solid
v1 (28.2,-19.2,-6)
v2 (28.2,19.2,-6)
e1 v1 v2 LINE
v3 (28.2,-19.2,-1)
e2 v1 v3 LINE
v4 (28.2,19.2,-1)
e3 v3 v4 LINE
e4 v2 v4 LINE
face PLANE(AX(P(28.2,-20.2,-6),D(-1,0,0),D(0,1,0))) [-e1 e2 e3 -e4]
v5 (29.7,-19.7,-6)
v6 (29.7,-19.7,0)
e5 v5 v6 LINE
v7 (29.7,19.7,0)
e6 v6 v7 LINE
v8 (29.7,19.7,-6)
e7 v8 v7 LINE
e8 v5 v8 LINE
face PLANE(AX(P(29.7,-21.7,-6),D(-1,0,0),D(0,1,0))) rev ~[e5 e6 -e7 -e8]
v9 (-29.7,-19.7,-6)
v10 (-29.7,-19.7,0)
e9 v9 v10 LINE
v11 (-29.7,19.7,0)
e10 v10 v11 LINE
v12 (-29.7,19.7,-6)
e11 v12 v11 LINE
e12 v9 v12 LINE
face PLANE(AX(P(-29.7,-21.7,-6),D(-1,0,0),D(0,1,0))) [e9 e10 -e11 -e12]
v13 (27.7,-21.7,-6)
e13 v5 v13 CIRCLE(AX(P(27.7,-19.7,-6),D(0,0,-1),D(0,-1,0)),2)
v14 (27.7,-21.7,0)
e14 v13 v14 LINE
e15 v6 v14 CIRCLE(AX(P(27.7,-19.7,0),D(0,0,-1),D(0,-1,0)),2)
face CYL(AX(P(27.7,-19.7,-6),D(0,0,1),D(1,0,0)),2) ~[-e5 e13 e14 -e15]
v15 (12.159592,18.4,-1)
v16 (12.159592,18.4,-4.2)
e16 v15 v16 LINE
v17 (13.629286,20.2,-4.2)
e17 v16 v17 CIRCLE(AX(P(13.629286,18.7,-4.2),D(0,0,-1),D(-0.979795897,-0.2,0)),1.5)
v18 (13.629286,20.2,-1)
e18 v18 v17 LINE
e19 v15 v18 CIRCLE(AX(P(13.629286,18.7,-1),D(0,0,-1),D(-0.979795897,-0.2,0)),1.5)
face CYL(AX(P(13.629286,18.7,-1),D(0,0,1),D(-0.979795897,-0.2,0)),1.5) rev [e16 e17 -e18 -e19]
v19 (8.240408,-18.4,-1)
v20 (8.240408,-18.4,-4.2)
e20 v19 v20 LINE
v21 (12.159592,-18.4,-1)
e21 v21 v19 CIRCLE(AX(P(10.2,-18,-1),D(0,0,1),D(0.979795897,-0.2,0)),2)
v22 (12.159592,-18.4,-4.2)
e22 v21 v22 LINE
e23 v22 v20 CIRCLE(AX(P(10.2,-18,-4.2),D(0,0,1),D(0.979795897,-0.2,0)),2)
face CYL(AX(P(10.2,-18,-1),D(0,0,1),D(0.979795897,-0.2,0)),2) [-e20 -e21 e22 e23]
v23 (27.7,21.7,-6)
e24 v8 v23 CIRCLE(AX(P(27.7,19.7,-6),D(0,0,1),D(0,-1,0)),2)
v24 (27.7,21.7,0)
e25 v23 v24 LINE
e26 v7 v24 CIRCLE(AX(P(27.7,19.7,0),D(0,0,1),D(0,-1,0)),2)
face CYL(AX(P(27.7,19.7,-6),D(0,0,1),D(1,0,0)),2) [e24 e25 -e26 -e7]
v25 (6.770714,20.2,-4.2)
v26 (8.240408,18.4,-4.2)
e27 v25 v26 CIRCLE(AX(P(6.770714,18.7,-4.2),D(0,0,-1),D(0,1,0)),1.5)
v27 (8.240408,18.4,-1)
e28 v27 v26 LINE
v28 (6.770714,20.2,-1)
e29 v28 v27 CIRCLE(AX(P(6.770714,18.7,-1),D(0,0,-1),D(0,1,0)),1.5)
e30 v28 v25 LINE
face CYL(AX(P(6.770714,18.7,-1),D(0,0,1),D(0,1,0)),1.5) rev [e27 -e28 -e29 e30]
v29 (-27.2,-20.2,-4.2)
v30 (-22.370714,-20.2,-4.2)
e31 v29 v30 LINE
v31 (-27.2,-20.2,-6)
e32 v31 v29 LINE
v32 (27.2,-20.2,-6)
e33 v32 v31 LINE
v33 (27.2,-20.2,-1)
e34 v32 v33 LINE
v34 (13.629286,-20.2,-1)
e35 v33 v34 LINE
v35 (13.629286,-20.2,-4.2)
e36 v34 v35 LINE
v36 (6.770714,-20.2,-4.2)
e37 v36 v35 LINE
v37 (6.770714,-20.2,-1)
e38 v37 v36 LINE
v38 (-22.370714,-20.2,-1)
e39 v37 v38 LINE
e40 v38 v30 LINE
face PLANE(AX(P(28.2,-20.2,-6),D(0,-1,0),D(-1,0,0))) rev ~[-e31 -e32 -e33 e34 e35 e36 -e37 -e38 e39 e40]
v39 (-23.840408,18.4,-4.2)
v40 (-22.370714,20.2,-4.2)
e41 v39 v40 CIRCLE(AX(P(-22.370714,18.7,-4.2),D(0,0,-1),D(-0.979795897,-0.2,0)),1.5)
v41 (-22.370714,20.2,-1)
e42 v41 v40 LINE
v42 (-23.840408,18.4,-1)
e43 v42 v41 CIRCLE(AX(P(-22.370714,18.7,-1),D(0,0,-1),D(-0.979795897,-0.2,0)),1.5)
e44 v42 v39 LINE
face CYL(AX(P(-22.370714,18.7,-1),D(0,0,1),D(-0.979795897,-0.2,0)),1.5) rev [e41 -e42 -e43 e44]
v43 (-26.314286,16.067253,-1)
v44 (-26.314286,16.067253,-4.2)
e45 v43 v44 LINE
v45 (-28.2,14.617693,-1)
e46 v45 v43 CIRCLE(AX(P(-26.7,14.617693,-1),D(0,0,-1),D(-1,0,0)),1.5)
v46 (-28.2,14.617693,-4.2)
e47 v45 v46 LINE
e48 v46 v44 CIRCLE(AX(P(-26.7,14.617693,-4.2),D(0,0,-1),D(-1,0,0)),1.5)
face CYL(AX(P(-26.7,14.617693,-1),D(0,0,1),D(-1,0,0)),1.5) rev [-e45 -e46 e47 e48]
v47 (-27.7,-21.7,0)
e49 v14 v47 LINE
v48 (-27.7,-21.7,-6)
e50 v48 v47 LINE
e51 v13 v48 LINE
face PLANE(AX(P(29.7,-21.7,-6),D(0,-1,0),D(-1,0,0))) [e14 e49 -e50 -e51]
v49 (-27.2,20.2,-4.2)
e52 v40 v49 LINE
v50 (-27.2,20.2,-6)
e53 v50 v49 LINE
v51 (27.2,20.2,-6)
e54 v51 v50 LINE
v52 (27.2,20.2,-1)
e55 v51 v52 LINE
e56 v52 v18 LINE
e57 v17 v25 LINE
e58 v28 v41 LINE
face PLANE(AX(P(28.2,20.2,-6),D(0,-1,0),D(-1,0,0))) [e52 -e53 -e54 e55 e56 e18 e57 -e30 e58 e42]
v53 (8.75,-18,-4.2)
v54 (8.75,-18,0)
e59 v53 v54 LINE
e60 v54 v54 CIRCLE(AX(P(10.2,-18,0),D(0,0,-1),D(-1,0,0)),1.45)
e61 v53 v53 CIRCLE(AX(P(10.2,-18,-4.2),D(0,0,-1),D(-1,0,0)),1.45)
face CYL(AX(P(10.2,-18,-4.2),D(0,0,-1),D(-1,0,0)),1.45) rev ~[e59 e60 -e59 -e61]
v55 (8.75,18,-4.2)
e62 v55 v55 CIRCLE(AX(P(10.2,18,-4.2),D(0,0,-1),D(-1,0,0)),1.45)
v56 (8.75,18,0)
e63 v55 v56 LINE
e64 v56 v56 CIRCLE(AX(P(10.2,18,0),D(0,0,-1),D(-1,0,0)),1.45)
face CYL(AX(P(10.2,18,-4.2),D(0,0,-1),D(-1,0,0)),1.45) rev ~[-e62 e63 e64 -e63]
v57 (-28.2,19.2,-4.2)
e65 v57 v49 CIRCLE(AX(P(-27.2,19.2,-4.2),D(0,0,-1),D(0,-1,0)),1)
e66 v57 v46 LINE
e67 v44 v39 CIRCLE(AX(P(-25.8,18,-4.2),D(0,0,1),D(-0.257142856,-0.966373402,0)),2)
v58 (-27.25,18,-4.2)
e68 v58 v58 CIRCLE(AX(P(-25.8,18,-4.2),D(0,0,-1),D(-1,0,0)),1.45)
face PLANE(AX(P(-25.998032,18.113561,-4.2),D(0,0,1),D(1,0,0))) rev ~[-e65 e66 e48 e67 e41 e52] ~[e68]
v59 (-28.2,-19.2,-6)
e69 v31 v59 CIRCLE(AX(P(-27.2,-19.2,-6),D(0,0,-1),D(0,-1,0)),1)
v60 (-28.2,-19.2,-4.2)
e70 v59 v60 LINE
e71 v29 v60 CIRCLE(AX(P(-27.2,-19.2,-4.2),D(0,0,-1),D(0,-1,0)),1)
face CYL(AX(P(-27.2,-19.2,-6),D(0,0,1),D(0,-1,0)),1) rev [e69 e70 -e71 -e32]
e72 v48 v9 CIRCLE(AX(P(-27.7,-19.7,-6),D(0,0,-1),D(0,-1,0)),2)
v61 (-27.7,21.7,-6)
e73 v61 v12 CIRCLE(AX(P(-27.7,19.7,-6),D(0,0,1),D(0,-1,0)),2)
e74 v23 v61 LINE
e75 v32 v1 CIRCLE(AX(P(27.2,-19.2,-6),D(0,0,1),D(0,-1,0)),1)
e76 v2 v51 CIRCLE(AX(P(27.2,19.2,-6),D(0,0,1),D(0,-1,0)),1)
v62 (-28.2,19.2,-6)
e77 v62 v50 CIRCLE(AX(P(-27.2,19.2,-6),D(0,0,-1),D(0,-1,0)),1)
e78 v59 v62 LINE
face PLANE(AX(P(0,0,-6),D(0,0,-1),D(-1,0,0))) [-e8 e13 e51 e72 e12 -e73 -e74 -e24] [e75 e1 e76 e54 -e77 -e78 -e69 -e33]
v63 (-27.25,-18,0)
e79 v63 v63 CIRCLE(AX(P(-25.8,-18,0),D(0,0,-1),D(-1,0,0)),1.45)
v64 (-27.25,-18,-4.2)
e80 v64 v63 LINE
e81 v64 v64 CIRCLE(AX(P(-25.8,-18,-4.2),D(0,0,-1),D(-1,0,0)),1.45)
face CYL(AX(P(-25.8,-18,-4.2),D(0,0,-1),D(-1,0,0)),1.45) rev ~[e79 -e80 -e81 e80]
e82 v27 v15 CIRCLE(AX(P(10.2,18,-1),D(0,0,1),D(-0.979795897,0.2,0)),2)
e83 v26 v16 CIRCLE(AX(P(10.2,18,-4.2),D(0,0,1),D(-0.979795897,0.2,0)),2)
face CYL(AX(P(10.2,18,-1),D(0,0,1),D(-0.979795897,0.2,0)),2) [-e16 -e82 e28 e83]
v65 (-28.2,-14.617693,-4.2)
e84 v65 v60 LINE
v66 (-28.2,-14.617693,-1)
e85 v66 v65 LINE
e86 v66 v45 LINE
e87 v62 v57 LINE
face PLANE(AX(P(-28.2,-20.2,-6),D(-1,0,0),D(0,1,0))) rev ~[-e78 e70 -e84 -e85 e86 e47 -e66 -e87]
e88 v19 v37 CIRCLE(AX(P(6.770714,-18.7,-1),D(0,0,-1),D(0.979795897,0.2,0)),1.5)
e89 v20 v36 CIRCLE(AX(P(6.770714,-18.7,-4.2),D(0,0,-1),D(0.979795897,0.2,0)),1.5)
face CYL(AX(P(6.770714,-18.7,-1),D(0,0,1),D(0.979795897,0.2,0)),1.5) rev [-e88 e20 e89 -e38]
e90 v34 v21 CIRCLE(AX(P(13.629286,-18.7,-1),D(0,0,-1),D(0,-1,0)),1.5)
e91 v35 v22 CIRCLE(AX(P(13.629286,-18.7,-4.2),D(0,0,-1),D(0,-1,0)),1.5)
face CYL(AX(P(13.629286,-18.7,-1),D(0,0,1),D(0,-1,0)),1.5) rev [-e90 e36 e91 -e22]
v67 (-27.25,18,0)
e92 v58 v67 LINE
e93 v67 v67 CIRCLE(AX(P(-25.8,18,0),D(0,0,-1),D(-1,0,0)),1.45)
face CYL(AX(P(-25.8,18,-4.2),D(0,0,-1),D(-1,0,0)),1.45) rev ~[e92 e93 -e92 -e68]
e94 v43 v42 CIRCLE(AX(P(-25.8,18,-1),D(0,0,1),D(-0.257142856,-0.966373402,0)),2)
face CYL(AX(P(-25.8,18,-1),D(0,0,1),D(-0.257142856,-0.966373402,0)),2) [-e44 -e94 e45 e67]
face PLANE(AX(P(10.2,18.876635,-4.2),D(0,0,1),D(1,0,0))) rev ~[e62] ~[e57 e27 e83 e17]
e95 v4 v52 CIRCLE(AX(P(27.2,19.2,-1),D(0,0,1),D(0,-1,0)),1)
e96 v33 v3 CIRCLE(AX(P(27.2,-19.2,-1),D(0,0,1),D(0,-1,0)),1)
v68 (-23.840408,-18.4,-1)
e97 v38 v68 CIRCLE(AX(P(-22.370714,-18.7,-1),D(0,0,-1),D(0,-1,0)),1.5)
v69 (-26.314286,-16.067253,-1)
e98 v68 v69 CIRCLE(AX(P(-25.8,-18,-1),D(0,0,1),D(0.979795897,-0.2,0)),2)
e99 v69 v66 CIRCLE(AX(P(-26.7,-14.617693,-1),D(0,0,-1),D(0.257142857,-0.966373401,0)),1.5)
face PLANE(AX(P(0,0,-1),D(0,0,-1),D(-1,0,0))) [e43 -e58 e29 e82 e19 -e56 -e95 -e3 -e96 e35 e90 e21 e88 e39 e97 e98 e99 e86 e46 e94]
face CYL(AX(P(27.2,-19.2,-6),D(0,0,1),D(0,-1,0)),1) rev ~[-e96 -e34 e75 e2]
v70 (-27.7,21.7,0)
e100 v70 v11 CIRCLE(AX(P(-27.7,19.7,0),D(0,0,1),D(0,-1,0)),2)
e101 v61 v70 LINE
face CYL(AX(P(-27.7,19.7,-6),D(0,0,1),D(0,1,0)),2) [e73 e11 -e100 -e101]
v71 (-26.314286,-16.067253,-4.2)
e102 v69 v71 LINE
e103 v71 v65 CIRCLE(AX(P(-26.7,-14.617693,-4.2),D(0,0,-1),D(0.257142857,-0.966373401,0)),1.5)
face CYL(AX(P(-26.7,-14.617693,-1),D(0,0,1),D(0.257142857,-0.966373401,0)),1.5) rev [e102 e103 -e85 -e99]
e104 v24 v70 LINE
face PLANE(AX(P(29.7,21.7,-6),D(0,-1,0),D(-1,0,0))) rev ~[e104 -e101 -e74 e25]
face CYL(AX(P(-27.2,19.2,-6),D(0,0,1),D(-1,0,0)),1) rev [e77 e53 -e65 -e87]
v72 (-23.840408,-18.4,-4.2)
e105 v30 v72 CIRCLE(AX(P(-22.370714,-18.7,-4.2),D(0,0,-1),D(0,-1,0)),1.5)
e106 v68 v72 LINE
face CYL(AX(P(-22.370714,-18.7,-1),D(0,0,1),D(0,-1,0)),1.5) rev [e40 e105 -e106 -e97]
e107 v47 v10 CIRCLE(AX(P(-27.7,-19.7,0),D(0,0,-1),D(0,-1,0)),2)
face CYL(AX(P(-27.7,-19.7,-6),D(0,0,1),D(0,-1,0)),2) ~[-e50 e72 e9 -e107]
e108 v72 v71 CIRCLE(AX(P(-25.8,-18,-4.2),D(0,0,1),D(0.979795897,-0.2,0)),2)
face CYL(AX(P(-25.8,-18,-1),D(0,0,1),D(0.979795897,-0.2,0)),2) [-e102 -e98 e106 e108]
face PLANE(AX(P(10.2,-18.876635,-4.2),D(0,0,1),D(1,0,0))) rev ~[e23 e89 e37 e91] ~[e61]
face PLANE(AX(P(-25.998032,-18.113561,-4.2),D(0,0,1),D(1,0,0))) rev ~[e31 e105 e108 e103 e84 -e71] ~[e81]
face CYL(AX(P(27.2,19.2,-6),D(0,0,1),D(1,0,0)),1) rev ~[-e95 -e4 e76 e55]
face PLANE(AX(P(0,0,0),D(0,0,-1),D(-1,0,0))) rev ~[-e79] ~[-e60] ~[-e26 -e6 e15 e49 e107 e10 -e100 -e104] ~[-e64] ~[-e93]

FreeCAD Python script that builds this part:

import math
import FreeCAD as App
import Part
import Sketcher
from FreeCAD import Vector
Q = App.Units.Quantity


def edges_at(feature, points):
    """Names of the edges that pass closest to the given points."""
    edges = feature.Shape.Edges
    near = lambda p: min(range(len(edges)), key=lambda i: edges[i].distToShape(Part.Vertex(*p))[0])
    return sorted({f"Edge{near(p) + 1}" for p in points})

doc = App.newDocument("Part")
body = doc.addObject("PartDesign::Body", "Body")

# Sketch on XY plane
sketch1 = doc.addObject("Sketcher::SketchObject", "Sketch")
body.addObject(sketch1)
sketch1.AttachmentSupport = (doc.XY_Plane, [""])
sketch1.MapMode = "FlatFace"
sketch1.AttachmentOffset = App.Placement(Vector(0, 0, -6), App.Rotation())
sketch1.addGeometry([
    Part.LineSegment(Vector(30, 22, 0), Vector(30, -22, 0)),
    Part.LineSegment(Vector(30, -22, 0), Vector(-30, -22, 0)),
    Part.LineSegment(Vector(-30, -22, 0), Vector(-30, 22, 0)),
    Part.LineSegment(Vector(-30, 22, 0), Vector(30, 22, 0)),
], False)
sketch1.addConstraint([
    Sketcher.Constraint("Coincident", 0, 2, 1, 1),
    Sketcher.Constraint("Coincident", 1, 2, 2, 1),
    Sketcher.Constraint("Coincident", 2, 2, 3, 1),
    Sketcher.Constraint("Coincident", 3, 2, 0, 1),
    Sketcher.Constraint("Vertical", 0),
    Sketcher.Constraint("Horizontal", 1),
    Sketcher.Constraint("Vertical", 2),
    Sketcher.Constraint("Horizontal", 3),
    Sketcher.Constraint("Symmetric", 0, 2, 2, 2, -1, 1),
    Sketcher.Constraint("DistanceX", 1, 2, 1, 1, Q("59.4 mm")),
    Sketcher.Constraint("DistanceY", 0, 2, 0, 1, Q("43.4 mm")),
])
pad1 = doc.addObject("PartDesign::Pad", "Pad")
body.addObject(pad1)
pad1.Profile = sketch1
pad1.Length = 6

# Sketch on XY plane
sketch2 = doc.addObject("Sketcher::SketchObject", "Sketch001")
body.addObject(sketch2)
sketch2.AttachmentSupport = (doc.XY_Plane, [""])
sketch2.MapMode = "FlatFace"
sketch2.AttachmentOffset = App.Placement(Vector(0, 0, -6), App.Rotation())
sketch2.addGeometry([
    Part.LineSegment(Vector(28, 20, 0), Vector(28, -20, 0)),
    Part.LineSegment(Vector(28, -20, 0), Vector(-28, -20, 0)),
    Part.LineSegment(Vector(-28, -20, 0), Vector(-28, 20, 0)),
    Part.LineSegment(Vector(-28, 20, 0), Vector(28, 20, 0)),
], False)
sketch2.addConstraint([
    Sketcher.Constraint("Coincident", 0, 2, 1, 1),
    Sketcher.Constraint("Coincident", 1, 2, 2, 1),
    Sketcher.Constraint("Coincident", 2, 2, 3, 1),
    Sketcher.Constraint("Coincident", 3, 2, 0, 1),
    Sketcher.Constraint("Vertical", 0),
    Sketcher.Constraint("Horizontal", 1),
    Sketcher.Constraint("Vertical", 2),
    Sketcher.Constraint("Horizontal", 3),
    Sketcher.Constraint("Symmetric", 0, 2, 2, 2, -1, 1),
    Sketcher.Constraint("DistanceX", 1, 2, 1, 1, Q("56.4 mm")),
    Sketcher.Constraint("DistanceY", 0, 2, 0, 1, Q("40.4 mm")),
])
pocket1 = doc.addObject("PartDesign::Pocket", "Pocket")
body.addObject(pocket1)
pocket1.Profile = sketch2
pocket1.Length = 5
pocket1.Reversed = True

# Sketch on XY plane
sketch3 = doc.addObject("Sketcher::SketchObject", "Sketch002")
body.addObject(sketch3)
sketch3.AttachmentSupport = (doc.XY_Plane, [""])
sketch3.MapMode = "FlatFace"
sketch3.AttachmentOffset = App.Placement(Vector(0, 0, -1), App.Rotation())
sketch3.addGeometry([
    Part.LineSegment(Vector(6.8, 20.2, 0), Vector(13.6, 20.2, 0)),
    Part.ArcOfCircle(Part.Circle(Vector(13.6, 18.7, 0), Vector(0, 0, 1), 1.5), math.radians(90), math.radians(192)),
    Part.ArcOfCircle(Part.Circle(Vector(10.2, 18, 0), Vector(0, 0, 1), 2), math.radians(168), math.radians(372)),
    Part.ArcOfCircle(Part.Circle(Vector(6.8, 18.7, 0), Vector(0, 0, 1), 1.5), math.radians(-12), math.radians(90)),
], False)
sketch3.addConstraint([
    Sketcher.Constraint("Tangent", 0, 2, 1, 1),
    Sketcher.Constraint("Tangent", 1, 2, 2, 2),
    Sketcher.Constraint("Tangent", 2, 1, 3, 1),
    Sketcher.Constraint("Tangent", 3, 2, 0, 1),
    Sketcher.Constraint("Horizontal", 0),
    Sketcher.Constraint("Equal", 1, 3),
    Sketcher.Constraint("Radius", 2, Q("2 mm")),
    Sketcher.Constraint("Radius", 1, Q("1.5 mm")),
    Sketcher.Constraint("DistanceY", -1, 1, 2, 3, Q("18 mm")),
    Sketcher.Constraint("DistanceY", -1, 1, 1, 3, Q("18.7 mm")),
    Sketcher.Constraint("DistanceX", -1, 1, 2, 3, Q("10.2 mm")),
])
pad2 = doc.addObject("PartDesign::Pad", "Pad001")
body.addObject(pad2)
pad2.Profile = sketch3
pad2.Length = 3.2
pad2.Reversed = True

# Sketch on XY plane
sketch4 = doc.addObject("Sketcher::SketchObject", "Sketch003")
body.addObject(sketch4)
sketch4.AttachmentSupport = (doc.XY_Plane, [""])
sketch4.MapMode = "FlatFace"
sketch4.AttachmentOffset = App.Placement(Vector(0, 0, -1), App.Rotation())
sketch4.addGeometry([
    Part.LineSegment(Vector(-28.2, 20.2, 0), Vector(-22.4, 20.2, 0)),  # 0
    Part.ArcOfCircle(Part.Circle(Vector(-22.4, 18.7, 0), Vector(0, 0, 1), 1.5), math.radians(90), math.radians(192)),  # 1
    Part.ArcOfCircle(Part.Circle(Vector(-25.8, 18, 0), Vector(0, 0, 1), 2), math.radians(-105), math.radians(12)),  # 2
    Part.ArcOfCircle(Part.Circle(Vector(-26.7, 14.6, 0), Vector(0, 0, 1), 1.5), math.radians(75), math.radians(180)),  # 3
    Part.LineSegment(Vector(-28.2, 14.6, 0), Vector(-28.2, 20.2, 0)),  # 4
], False)
sketch4.addConstraint([
    Sketcher.Constraint("Tangent", 0, 2, 1, 1),
    Sketcher.Constraint("Tangent", 1, 2, 2, 2),
    Sketcher.Constraint("Tangent", 2, 1, 3, 1),
    Sketcher.Constraint("Tangent", 3, 2, 4, 1),
    Sketcher.Constraint("Coincident", 4, 2, 0, 1),
    Sketcher.Constraint("Horizontal", 0),
    Sketcher.Constraint("Vertical", 4),
    Sketcher.Constraint("Equal", 1, 3),
    Sketcher.Constraint("Radius", 2, Q("2 mm")),
    Sketcher.Constraint("Radius", 1, Q("1.5 mm")),
    Sketcher.Constraint("DistanceY", -1, 1, 2, 3, Q("18 mm")),
    Sketcher.Constraint("DistanceY", -1, 1, 1, 3, Q("18.7 mm")),
    Sketcher.Constraint("DistanceX", 2, 3, -1, 1, Q("25.8 mm")),
    Sketcher.Constraint("DistanceX", 3, 3, -1, 1, Q("26.7 mm")),
])
pad3 = doc.addObject("PartDesign::Pad", "Pad002")
body.addObject(pad3)
pad3.Profile = sketch4
pad3.Length = 3.2
pad3.Reversed = True

# Sketch on XY plane
sketch5 = doc.addObject("Sketcher::SketchObject", "Sketch004")
body.addObject(sketch5)
sketch5.AttachmentSupport = (doc.XY_Plane, [""])
sketch5.MapMode = "FlatFace"
sketch5.AttachmentOffset = App.Placement(Vector(0, 0, -1), App.Rotation())
sketch5.addGeometry([
    Part.LineSegment(Vector(-28.2, -20.2, 0), Vector(-28.2, -14.6, 0)),  # 0
    Part.ArcOfCircle(Part.Circle(Vector(-26.7, -14.6, 0), Vector(0, 0, 1), 1.5), math.radians(180), math.radians(285)),  # 1
    Part.ArcOfCircle(Part.Circle(Vector(-25.8, -18, 0), Vector(0, 0, 1), 2), math.radians(-12), math.radians(105)),  # 2
    Part.ArcOfCircle(Part.Circle(Vector(-22.4, -18.7, 0), Vector(0, 0, 1), 1.5), math.radians(168), math.radians(270)),  # 3
    Part.LineSegment(Vector(-22.4, -20.2, 0), Vector(-28.2, -20.2, 0)),  # 4
], False)
sketch5.addConstraint([
    Sketcher.Constraint("Tangent", 0, 2, 1, 1),
    Sketcher.Constraint("Tangent", 1, 2, 2, 2),
    Sketcher.Constraint("Tangent", 2, 1, 3, 1),
    Sketcher.Constraint("Tangent", 3, 2, 4, 1),
    Sketcher.Constraint("Coincident", 4, 2, 0, 1),
    Sketcher.Constraint("Vertical", 0),
    Sketcher.Constraint("Horizontal", 4),
    Sketcher.Constraint("Equal", 1, 3),
    Sketcher.Constraint("Radius", 2, Q("2 mm")),
    Sketcher.Constraint("Radius", 1, Q("1.5 mm")),
    Sketcher.Constraint("DistanceY", 2, 3, -1, 1, Q("18 mm")),
    Sketcher.Constraint("DistanceX", 1, 3, -1, 1, Q("26.7 mm")),
    Sketcher.Constraint("DistanceX", 2, 3, -1, 1, Q("25.8 mm")),
    Sketcher.Constraint("DistanceY", 3, 3, -1, 1, Q("18.7 mm")),
])
pad4 = doc.addObject("PartDesign::Pad", "Pad003")
body.addObject(pad4)
pad4.Profile = sketch5
pad4.Length = 3.2
pad4.Reversed = True

# Sketch on XY plane
sketch6 = doc.addObject("Sketcher::SketchObject", "Sketch005")
body.addObject(sketch6)
sketch6.AttachmentSupport = (doc.XY_Plane, [""])
sketch6.MapMode = "FlatFace"
sketch6.AttachmentOffset = App.Placement(Vector(0, 0, -1), App.Rotation())
sketch6.addGeometry([
    Part.LineSegment(Vector(13.6, -20.2, 0), Vector(6.8, -20.2, 0)),
    Part.ArcOfCircle(Part.Circle(Vector(6.8, -18.7, 0), Vector(0, 0, 1), 1.5), math.radians(-90), math.radians(12)),
    Part.ArcOfCircle(Part.Circle(Vector(10.2, -18, 0), Vector(0, 0, 1), 2), math.radians(-12), math.radians(192)),
    Part.ArcOfCircle(Part.Circle(Vector(13.6, -18.7, 0), Vector(0, 0, 1), 1.5), math.radians(168), math.radians(270)),
], False)
sketch6.addConstraint([
    Sketcher.Constraint("Tangent", 0, 2, 1, 1),
    Sketcher.Constraint("Tangent", 1, 2, 2, 2),
    Sketcher.Constraint("Tangent", 2, 1, 3, 1),
    Sketcher.Constraint("Tangent", 3, 2, 0, 1),
    Sketcher.Constraint("Horizontal", 0),
    Sketcher.Constraint("Equal", 1, 3),
    Sketcher.Constraint("Radius", 2, Q("2 mm")),
    Sketcher.Constraint("Radius", 1, Q("1.5 mm")),
    Sketcher.Constraint("DistanceY", 2, 3, -1, 1, Q("18 mm")),
    Sketcher.Constraint("DistanceY", 1, 3, -1, 1, Q("18.7 mm")),
    Sketcher.Constraint("DistanceX", -1, 1, 2, 3, Q("10.2 mm")),
])
pad5 = doc.addObject("PartDesign::Pad", "Pad004")
body.addObject(pad5)
pad5.Profile = sketch6
pad5.Length = 3.2
pad5.Reversed = True
doc.recompute()

fillet = doc.addObject("PartDesign::Fillet", "Fillet")
body.addObject(fillet)
fillet.Base = (pad5, edges_at(pad5, [
    (28.2, -20.2, -3.5),
    (28.2, 20.2, -3.5),
    (-28.2, 20.2, -5.1),
    (-28.2, -20.2, -5.1),
]))
fillet.Radius = 1
doc.recompute()

fillet2 = doc.addObject("PartDesign::Fillet", "Fillet001")
body.addObject(fillet2)
fillet2.Base = (fillet, edges_at(fillet, [
    (-29.7, 21.7, -3),
    (-29.7, -21.7, -3),
    (29.7, -21.7, -3),
    (29.7, 21.7, -3),
]))
fillet2.Radius = 2

# Sketch on XY plane
sketch7 = doc.addObject("Sketcher::SketchObject", "Sketch006")
body.addObject(sketch7)
sketch7.AttachmentSupport = (doc.XY_Plane, [""])
sketch7.MapMode = "FlatFace"
sketch7.AttachmentOffset = App.Placement(Vector(0, 0, -4.2), App.Rotation())
sketch7.addGeometry([
    Part.Circle(Vector(10.2, 18, 0), Vector(0, 0, 1), 1.4),
    Part.Circle(Vector(10.2, -18, 0), Vector(0, 0, 1), 1.4),
    Part.Circle(Vector(-25.8, 18, 0), Vector(0, 0, 1), 1.4),
    Part.Circle(Vector(-25.8, -18, 0), Vector(0, 0, 1), 1.4),
], False)
sketch7.addConstraint([
    Sketcher.Constraint("Equal", 0, 1),
    Sketcher.Constraint("Equal", 1, 2),
    Sketcher.Constraint("Equal", 2, 3),
    Sketcher.Constraint("Symmetric", 0, 3, 1, 3, -1),
    Sketcher.Constraint("Symmetric", 2, 3, 3, 3, -1),
    Sketcher.Constraint("Horizontal", 0, 3, 2, 3),
    Sketcher.Constraint("Diameter", 0, Q("2.9 mm")),
    Sketcher.Constraint("DistanceY", -1, 1, 0, 3, Q("18 mm")),
    Sketcher.Constraint("DistanceX", 2, 3, 0, 3, Q("36 mm")),
    Sketcher.Constraint("DistanceX", -1, 1, 0, 3, Q("10.2 mm")),
])
pocket2 = doc.addObject("PartDesign::Pocket", "Pocket001")
body.addObject(pocket2)
pocket2.Profile = sketch7
pocket2.Length = 20
pocket2.Reversed = True

doc.recompute()
